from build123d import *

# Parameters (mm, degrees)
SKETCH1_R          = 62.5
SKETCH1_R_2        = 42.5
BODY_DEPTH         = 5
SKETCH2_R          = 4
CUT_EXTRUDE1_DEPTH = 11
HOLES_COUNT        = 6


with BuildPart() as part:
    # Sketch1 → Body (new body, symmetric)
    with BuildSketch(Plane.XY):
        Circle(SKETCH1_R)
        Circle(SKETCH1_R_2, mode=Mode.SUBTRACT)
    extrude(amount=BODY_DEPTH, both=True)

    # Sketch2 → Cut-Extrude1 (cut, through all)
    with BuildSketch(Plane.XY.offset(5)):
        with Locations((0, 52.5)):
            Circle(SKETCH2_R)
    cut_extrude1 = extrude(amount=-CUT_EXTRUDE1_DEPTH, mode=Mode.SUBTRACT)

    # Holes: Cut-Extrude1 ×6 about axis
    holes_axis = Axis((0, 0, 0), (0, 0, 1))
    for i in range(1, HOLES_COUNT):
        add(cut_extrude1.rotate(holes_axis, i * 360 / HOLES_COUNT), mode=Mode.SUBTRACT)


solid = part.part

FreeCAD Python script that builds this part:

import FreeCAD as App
import Part
import Sketcher

V = App.Vector
Q = App.Units.Quantity

doc = App.newDocument("Part")
body = doc.addObject("PartDesign::Body", "Body")

sketch1 = body.newObject("Sketcher::SketchObject", "Sketch")
sketch1.AttachmentSupport = (doc.getObject("XY_Plane"), [""])
sketch1.MapMode = "FlatFace"
sketch1.addGeometry(Part.Circle(V(0, 0, 0), V(0, 0, 1), 62.5), False)
sketch1.addGeometry(Part.Circle(V(0, 0, 0), V(0, 0, 1), 42.5), False)
sketch1.addConstraint(Sketcher.Constraint("Coincident", 0, 3, -1, 1))
sketch1.addConstraint(Sketcher.Constraint("Coincident", 1, 3, -1, 1))
sketch1.addConstraint(Sketcher.Constraint("Diameter", 0, Q("125 mm")))
sketch1.addConstraint(Sketcher.Constraint("Diameter", 1, Q("85 mm")))
pad1 = body.newObject("PartDesign::Pad", "Pad")
pad1.Profile = sketch1
pad1.Length = 10
pad1.Midplane = True

sketch2 = body.newObject("Sketcher::SketchObject", "Sketch001")
sketch2.AttachmentSupport = (doc.getObject("XY_Plane"), [""])
sketch2.MapMode = "FlatFace"
sketch2.AttachmentOffset = App.Placement(V(0, 0, 5), App.Rotation())
sketch2.addGeometry(Part.Circle(V(0, 52.5, 0), V(0, 0, 1), 4), False)
sketch2.addConstraint(Sketcher.Constraint("PointOnObject", 0, 3, -2))
sketch2.addConstraint(Sketcher.Constraint("Diameter", 0, Q("8 mm")))
sketch2.addConstraint(Sketcher.Constraint("DistanceY", -1, 1, 0, 3, Q("52.5 mm")))
pocket1 = body.newObject("PartDesign::Pocket", "Pocket")
pocket1.Profile = sketch2
pocket1.Type = "ThroughAll"
doc.recompute()

polarpattern = body.newObject("PartDesign::PolarPattern", "PolarPattern")
polarpattern.Originals = [pocket1]
polarpattern.Axis = (doc.getObject("Z_Axis"), [""])
polarpattern.Angle = 360
polarpattern.Occurrences = 6
body.Tip = polarpattern

doc.recompute()
